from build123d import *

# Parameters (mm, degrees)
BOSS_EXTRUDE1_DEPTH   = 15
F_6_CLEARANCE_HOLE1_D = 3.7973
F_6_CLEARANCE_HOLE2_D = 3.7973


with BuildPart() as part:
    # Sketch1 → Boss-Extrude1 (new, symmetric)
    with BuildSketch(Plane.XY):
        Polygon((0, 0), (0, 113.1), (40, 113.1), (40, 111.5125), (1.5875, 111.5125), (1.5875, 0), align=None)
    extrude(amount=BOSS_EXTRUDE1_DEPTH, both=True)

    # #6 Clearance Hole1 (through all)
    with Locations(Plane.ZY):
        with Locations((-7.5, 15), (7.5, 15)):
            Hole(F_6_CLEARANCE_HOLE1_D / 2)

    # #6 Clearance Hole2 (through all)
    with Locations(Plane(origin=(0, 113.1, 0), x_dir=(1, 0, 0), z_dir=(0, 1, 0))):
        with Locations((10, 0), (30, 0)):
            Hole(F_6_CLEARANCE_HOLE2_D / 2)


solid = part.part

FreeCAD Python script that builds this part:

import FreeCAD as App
import Part
import Sketcher

V = App.Vector
Q = App.Units.Quantity


def add_polygon(sketch, points):
    """Adds a closed chain of lines whose ends are joined by coincident constraints."""
    first, n = sketch.GeometryCount, len(points)
    for a, b in zip(points, points[1:] + points[:1]):
        sketch.addGeometry(Part.LineSegment(App.Vector(*a, 0), App.Vector(*b, 0)), False)
    for i in range(n):
        sketch.addConstraint(Sketcher.Constraint("Coincident", first + i, 2, first + (i + 1) % n, 1))

doc = App.newDocument("Part")
body = doc.addObject("PartDesign::Body", "Body")

# Sketch on XY plane
sketch1 = body.newObject("Sketcher::SketchObject", "Sketch")
sketch1.AttachmentSupport = (doc.getObject("XY_Plane"), [""])
sketch1.MapMode = "FlatFace"
add_polygon(sketch1, [(0, 113.1), (0, 0), (1.5875, 0), (1.5875, 111.5125), (40, 111.5125), (40, 113.1)])  # lines 0-5
sketch1.addConstraint([
    Sketcher.Constraint("Vertical", 0),
    Sketcher.Constraint("Horizontal", 1),
    Sketcher.Constraint("Vertical", 2),
    Sketcher.Constraint("Horizontal", 3),
    Sketcher.Constraint("Vertical", 4),
    Sketcher.Constraint("Horizontal", 5),
    Sketcher.Constraint("Coincident", 0, 2, -1, 1),
    Sketcher.Constraint("Equal", 1, 4),
    Sketcher.Constraint("DistanceX", 5, 2, 5, 1, Q("40 mm")),
    Sketcher.Constraint("DistanceY", 0, 2, 0, 1, Q("113.1 mm")),
    Sketcher.Constraint("DistanceX", 1, 1, 1, 2, Q("1.5875 mm")),
])
pad1 = body.newObject("PartDesign::Pad", "Pad")
pad1.Profile = sketch1
pad1.Length = 30
pad1.Midplane = True

# Sketch on YZ plane
sketch2 = body.newObject("Sketcher::SketchObject", "Sketch001")
sketch2.AttachmentSupport = (doc.getObject("YZ_Plane"), [""])
sketch2.MapMode = "FlatFace"
sketch2.addGeometry([
    Part.Circle(V(15, -7.5, 0), V(0, 0, 1), 1.89865),
    Part.Circle(V(15, 7.5, 0), V(0, 0, 1), 1.89865),
], False)
sketch2.addConstraint([
    Sketcher.Constraint("Equal", 0, 1),
    Sketcher.Constraint("Symmetric", 0, 3, 1, 3, -1),
    Sketcher.Constraint("DistanceX", -1, 1, 0, 3, Q("15 mm")),
    Sketcher.Constraint("DistanceY", 0, 3, 1, 3, Q("15 mm")),
    Sketcher.Constraint("Diameter", 0, Q("3.7973 mm")),
])
doc.recompute()
hole = body.newObject("PartDesign::Hole", "Hole")
hole.Profile = sketch2
hole.ThreadType = "None"
hole.Diameter = 3.7973
hole.DepthType = "ThroughAll"
hole.Reversed = True

# Sketch on XZ plane
sketch3 = body.newObject("Sketcher::SketchObject", "Sketch002")
sketch3.AttachmentSupport = (doc.getObject("XZ_Plane"), [""])
sketch3.MapMode = "FlatFace"
sketch3.AttachmentOffset = App.Placement(V(0, 0, -113.1), App.Rotation())
sketch3.addGeometry([
    Part.Circle(V(10, 0, 0), V(0, 0, 1), 1.89865),
    Part.Circle(V(30, 0, 0), V(0, 0, 1), 1.89865),
], False)
sketch3.addConstraint([
    Sketcher.Constraint("Equal", 0, 1),
    Sketcher.Constraint("PointOnObject", 0, 3, -1),
    Sketcher.Constraint("PointOnObject", 1, 3, -1),
    Sketcher.Constraint("DistanceX", -1, 1, 0, 3, Q("10 mm")),
    Sketcher.Constraint("DistanceX", -1, 1, 1, 3, Q("30 mm")),
    Sketcher.Constraint("Diameter", 0, Q("3.7973 mm")),
])
doc.recompute()
hole2 = body.newObject("PartDesign::Hole", "Hole001")
hole2.Profile = sketch3
hole2.ThreadType = "None"
hole2.Diameter = 3.7973
hole2.DepthType = "ThroughAll"
hole2.Reversed = True

doc.recompute()
